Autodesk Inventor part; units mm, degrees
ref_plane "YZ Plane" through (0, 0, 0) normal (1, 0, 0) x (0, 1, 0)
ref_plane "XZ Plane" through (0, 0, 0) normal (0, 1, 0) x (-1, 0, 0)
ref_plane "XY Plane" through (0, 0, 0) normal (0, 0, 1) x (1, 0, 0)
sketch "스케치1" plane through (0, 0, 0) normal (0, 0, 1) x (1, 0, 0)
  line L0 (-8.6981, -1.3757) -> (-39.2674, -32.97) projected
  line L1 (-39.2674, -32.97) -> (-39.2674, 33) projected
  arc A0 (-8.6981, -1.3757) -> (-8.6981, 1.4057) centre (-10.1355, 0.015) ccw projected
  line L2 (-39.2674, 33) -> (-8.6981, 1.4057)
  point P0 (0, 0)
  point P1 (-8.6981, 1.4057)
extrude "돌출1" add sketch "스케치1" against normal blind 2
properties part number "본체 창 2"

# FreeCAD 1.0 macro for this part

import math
import FreeCAD as App
import Part
import Sketcher
Q = App.Units.Quantity

doc = App.newDocument("Part")
body = doc.addObject("PartDesign::Body", "Body")

sketch1 = body.newObject("Sketcher::SketchObject", "Sketch")
sketch1.AttachmentSupport = (doc.getObject("XY_Plane"), [""])
sketch1.MapMode = "FlatFace"
sketch1.addGeometry([
    Part.LineSegment(App.Vector(-39.2674, -32.97, 0), App.Vector(-8.6981, -1.3757, 0)),
    Part.ArcOfCircle(Part.Circle(App.Vector(-10.1355, 0.015, 0), App.Vector(0, 0, 1), 2.000041), math.radians(-44.053969), math.radians(44.053969)),
    Part.LineSegment(App.Vector(-8.6981, 1.4057, 0), App.Vector(-39.2674, 33, 0)),
    Part.LineSegment(App.Vector(-39.2674, 33, 0), App.Vector(-39.2674, -32.97, 0)),
], False)
sketch1.addConstraint([
    Sketcher.Constraint("Tangent", 0, 2, 1, 1),
    Sketcher.Constraint("Tangent", 1, 2, 2, 1),
    Sketcher.Constraint("Coincident", 2, 2, 3, 1),
    Sketcher.Constraint("Coincident", 3, 2, 0, 1),
    Sketcher.Constraint("Vertical", 3),
    Sketcher.Constraint("Vertical", 0, 2, 1, 2),
    Sketcher.Constraint("Radius", 1, Q("2 mm")),
    Sketcher.Constraint("DistanceY", -1, 1, 2, 2, Q("33 mm")),
    Sketcher.Constraint("DistanceY", 3, 2, 3, 1, Q("65.97 mm")),
    Sketcher.Constraint("DistanceX", 0, 2, -1, 1, Q("8.698 mm")),
    Sketcher.Constraint("DistanceX", 2, 2, 1, 3, Q("29.132 mm")),
])
pad1 = body.newObject("PartDesign::Pad", "Pad")
pad1.Profile = sketch1
pad1.Length = 2
pad1.Reversed = True

doc.recompute()
